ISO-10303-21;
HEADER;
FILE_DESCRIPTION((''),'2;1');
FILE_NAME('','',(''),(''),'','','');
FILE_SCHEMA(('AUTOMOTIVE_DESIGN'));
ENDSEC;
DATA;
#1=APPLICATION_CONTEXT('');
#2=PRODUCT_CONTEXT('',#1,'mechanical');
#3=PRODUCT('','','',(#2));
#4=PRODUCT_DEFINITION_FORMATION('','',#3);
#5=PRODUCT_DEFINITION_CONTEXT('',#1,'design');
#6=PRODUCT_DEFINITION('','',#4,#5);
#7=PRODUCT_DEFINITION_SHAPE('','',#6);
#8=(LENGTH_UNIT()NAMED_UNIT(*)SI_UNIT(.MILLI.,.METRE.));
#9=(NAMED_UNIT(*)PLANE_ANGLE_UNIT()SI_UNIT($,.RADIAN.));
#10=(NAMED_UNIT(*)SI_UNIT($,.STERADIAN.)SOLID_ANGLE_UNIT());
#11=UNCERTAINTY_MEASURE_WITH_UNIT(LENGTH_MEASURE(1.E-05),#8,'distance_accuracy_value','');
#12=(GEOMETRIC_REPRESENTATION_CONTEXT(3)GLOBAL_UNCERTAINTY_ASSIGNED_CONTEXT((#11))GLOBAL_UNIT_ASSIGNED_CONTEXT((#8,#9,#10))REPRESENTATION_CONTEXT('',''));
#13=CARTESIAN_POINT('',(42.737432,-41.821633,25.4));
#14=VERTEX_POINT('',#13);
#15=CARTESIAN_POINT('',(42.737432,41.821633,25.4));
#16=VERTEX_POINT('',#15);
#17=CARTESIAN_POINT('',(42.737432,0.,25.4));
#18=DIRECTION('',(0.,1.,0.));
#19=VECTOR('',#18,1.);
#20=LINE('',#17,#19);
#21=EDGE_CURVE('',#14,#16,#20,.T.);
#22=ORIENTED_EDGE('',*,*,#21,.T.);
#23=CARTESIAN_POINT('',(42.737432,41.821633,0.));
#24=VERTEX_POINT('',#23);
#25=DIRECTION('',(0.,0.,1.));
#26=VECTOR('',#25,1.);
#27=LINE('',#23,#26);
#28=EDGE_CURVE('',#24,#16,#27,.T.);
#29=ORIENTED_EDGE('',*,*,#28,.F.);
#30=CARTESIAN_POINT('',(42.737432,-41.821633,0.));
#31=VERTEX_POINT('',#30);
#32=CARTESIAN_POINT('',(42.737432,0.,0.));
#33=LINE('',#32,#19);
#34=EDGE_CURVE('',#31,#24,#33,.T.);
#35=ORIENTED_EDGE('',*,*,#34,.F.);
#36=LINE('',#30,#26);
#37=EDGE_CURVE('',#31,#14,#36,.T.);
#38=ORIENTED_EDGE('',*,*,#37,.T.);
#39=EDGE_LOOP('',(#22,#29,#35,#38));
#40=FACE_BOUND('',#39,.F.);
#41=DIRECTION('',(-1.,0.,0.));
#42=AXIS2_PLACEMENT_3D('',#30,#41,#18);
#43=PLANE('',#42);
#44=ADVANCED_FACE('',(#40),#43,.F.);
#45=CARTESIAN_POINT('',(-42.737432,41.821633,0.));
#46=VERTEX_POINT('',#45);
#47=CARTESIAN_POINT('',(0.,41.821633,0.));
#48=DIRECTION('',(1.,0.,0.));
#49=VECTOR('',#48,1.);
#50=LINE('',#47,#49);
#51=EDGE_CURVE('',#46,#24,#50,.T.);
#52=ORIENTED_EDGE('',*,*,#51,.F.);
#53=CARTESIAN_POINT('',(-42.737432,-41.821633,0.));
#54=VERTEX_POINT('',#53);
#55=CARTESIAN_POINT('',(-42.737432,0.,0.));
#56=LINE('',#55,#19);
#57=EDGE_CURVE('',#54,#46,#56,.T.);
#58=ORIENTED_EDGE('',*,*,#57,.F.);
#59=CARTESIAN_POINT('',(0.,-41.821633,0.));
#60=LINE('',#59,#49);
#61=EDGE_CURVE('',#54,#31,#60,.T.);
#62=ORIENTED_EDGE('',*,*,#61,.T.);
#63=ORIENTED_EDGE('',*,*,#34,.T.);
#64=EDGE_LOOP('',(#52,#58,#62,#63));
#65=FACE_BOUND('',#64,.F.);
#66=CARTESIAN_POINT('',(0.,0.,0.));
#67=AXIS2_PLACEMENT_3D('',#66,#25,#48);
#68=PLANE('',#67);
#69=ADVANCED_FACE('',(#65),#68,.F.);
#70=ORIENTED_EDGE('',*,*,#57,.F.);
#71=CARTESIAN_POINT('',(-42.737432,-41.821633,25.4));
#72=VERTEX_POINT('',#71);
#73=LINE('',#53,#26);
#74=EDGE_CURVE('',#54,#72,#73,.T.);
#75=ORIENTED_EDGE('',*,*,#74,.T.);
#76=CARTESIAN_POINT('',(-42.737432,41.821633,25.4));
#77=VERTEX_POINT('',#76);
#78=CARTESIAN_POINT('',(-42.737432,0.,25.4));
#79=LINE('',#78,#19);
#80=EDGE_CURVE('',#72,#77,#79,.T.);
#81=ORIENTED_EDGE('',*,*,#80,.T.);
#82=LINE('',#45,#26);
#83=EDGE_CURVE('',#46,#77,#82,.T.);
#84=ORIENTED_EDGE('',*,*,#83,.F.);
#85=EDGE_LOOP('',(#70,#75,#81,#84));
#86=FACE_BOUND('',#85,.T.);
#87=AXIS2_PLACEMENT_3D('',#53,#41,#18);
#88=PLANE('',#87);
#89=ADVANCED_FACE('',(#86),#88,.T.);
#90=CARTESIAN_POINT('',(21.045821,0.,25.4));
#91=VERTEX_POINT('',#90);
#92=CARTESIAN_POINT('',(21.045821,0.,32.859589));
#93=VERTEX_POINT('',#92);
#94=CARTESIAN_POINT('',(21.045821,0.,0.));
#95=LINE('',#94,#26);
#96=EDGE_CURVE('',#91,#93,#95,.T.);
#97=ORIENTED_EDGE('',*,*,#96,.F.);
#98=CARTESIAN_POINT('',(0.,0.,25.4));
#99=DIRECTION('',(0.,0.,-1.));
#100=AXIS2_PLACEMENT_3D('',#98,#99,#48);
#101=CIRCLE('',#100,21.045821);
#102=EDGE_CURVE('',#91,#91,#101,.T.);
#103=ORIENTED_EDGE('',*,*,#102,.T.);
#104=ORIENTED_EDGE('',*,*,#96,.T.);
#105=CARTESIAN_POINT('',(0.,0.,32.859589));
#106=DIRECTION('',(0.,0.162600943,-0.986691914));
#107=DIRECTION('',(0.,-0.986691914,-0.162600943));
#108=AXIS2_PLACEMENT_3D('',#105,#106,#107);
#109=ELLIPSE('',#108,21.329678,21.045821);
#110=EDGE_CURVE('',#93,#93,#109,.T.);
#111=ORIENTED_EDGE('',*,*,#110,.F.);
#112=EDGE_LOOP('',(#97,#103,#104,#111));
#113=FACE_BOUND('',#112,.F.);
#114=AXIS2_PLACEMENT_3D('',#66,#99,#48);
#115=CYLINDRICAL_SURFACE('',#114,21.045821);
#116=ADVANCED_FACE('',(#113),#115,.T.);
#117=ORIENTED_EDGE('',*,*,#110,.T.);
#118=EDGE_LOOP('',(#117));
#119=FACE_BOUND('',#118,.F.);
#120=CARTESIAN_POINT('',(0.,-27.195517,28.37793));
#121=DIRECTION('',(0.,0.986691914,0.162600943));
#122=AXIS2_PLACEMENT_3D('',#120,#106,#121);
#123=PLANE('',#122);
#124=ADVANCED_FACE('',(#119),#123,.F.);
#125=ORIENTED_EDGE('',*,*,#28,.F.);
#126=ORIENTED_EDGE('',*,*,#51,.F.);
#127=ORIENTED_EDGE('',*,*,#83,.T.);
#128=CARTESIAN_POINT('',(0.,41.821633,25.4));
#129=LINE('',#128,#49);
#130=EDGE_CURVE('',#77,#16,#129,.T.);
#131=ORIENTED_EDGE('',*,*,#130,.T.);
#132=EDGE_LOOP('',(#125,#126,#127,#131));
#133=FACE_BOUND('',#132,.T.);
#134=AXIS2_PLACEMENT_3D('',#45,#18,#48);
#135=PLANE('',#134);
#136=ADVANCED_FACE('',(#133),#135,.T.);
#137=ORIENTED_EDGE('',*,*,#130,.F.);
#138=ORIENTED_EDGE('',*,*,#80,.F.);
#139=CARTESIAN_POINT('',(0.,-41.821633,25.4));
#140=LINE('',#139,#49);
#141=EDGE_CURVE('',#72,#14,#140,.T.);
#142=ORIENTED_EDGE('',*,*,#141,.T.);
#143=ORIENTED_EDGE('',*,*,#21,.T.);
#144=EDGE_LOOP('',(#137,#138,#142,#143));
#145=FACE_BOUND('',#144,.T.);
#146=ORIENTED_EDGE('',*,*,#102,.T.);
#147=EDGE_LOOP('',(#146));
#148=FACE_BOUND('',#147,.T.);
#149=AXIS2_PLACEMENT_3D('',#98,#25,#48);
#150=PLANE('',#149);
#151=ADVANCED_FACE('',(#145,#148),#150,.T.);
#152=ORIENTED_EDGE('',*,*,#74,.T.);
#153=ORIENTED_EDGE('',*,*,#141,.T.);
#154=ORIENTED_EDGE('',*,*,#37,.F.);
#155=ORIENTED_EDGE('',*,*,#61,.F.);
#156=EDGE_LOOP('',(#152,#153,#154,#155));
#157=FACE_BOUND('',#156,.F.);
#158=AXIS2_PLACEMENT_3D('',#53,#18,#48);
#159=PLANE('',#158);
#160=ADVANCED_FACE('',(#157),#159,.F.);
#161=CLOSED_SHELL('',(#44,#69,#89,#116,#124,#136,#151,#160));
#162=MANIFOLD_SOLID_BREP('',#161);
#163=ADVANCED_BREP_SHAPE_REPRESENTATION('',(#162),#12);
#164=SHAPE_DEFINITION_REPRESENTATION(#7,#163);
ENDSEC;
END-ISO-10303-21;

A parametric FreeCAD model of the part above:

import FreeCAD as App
import Part
import Sketcher

V = App.Vector
Q = App.Units.Quantity

doc = App.newDocument("Part")
params = doc.addObject("Spreadsheet::Sheet", "Params")
for row, (alias, value) in enumerate([
    ("pad1_length", "1 in"),
    ("pad2_length", "1.77 in"),
    ("sketch3_height", "0.45 in"),
    ("pocket1_length", "2.58 in"),
], start=1):
    params.set(f"A{row}", alias)
    params.set(f"B{row}", "=" + value)
    params.setAlias(f"B{row}", alias)

body = doc.addObject("PartDesign::Body", "Body")

# Sketch on XY plane
sketch1 = body.newObject("Sketcher::SketchObject", "Sketch")
sketch1.AttachmentSupport = (doc.getObject("XY_Plane"), [""])
sketch1.MapMode = "FlatFace"
sketch1.addGeometry([
    Part.LineSegment(V(-43, 42, 0), V(-43, -42, 0)),
    Part.LineSegment(V(-43, -42, 0), V(43, -42, 0)),
    Part.LineSegment(V(43, -42, 0), V(43, 42, 0)),
    Part.LineSegment(V(43, 42, 0), V(-43, 42, 0)),
], False)
sketch1.addConstraint([
    Sketcher.Constraint("Coincident", 0, 2, 1, 1),
    Sketcher.Constraint("Coincident", 1, 2, 2, 1),
    Sketcher.Constraint("Coincident", 2, 2, 3, 1),
    Sketcher.Constraint("Coincident", 3, 2, 0, 1),
    Sketcher.Constraint("Vertical", 0),
    Sketcher.Constraint("Horizontal", 1),
    Sketcher.Constraint("Vertical", 2),
    Sketcher.Constraint("Horizontal", 3),
    Sketcher.Constraint("Symmetric", 0, 2, 2, 2, -1, 1),
    Sketcher.Constraint("DistanceX", 1, 1, 1, 2, Q("85.474864 mm")),
    Sketcher.Constraint("DistanceY", 0, 2, 0, 1, Q("83.643266 mm")),
])
pad1 = body.newObject("PartDesign::Pad", "Pad")
pad1.Profile = sketch1
pad1.setExpression("Length", "Params.pad1_length")

# Sketch on XY plane
sketch2 = body.newObject("Sketcher::SketchObject", "Sketch001")
sketch2.AttachmentSupport = (doc.getObject("XY_Plane"), [""])
sketch2.MapMode = "FlatFace"
sketch2.addGeometry(Part.Circle(V(0, 0, 0), V(0, 0, 1), 21), False)
sketch2.addConstraint([
    Sketcher.Constraint("Coincident", 0, 3, -1, 1),
    Sketcher.Constraint("Diameter", 0, Q("42.091642 mm")),
])
pad2 = body.newObject("PartDesign::Pad", "Pad001")
pad2.Profile = sketch2
pad2.setExpression("Length", "Params.pad2_length")

# Sketch on YZ plane
sketch3 = body.newObject("Sketcher::SketchObject", "Sketch002")
sketch3.AttachmentSupport = (doc.getObject("YZ_Plane"), [""])
sketch3.MapMode = "FlatFace"
sketch3.addGeometry([
    Part.LineSegment(V(25, 37, 0), V(25, 48, 0)),
    Part.LineSegment(V(25, 48, 0), V(-27, 49, 0)),
    Part.LineSegment(V(-27, 49, 0), V(-27, 28, 0)),
    Part.LineSegment(V(-27, 28, 0), V(25, 37, 0)),
], False)
sketch3.addConstraint([
    Sketcher.Constraint("Coincident", 0, 2, 1, 1),
    Sketcher.Constraint("Coincident", 1, 2, 2, 1),
    Sketcher.Constraint("Coincident", 2, 2, 3, 1),
    Sketcher.Constraint("Coincident", 3, 2, 0, 1),
    Sketcher.Constraint("Vertical", 0),
    Sketcher.Constraint("Vertical", 2),
    Sketcher.Constraint("DistanceY", 0, 1, 0, 2, Q("0.45 in")),
    Sketcher.Constraint("DistanceY", 2, 2, 2, 1, Q("20.692242 mm")),
    Sketcher.Constraint("DistanceY", -1, 1, 2, 2, Q("28.37793 mm")),
    Sketcher.Constraint("Distance", 1, Q("52.620735 mm")),
    Sketcher.Constraint("Distance", 3, Q("53.327096 mm")),
    Sketcher.Constraint("DistanceX", -1, 1, 0, 2, Q("25.421897 mm")),
])
sketch3.setExpression("Constraints[6]", "Params.sketch3_height")
pocket1 = body.newObject("PartDesign::Pocket", "Pocket")
pocket1.Profile = sketch3
pocket1.setExpression("Length", "Params.pocket1_length")
pocket1.Midplane = True

doc.recompute()
